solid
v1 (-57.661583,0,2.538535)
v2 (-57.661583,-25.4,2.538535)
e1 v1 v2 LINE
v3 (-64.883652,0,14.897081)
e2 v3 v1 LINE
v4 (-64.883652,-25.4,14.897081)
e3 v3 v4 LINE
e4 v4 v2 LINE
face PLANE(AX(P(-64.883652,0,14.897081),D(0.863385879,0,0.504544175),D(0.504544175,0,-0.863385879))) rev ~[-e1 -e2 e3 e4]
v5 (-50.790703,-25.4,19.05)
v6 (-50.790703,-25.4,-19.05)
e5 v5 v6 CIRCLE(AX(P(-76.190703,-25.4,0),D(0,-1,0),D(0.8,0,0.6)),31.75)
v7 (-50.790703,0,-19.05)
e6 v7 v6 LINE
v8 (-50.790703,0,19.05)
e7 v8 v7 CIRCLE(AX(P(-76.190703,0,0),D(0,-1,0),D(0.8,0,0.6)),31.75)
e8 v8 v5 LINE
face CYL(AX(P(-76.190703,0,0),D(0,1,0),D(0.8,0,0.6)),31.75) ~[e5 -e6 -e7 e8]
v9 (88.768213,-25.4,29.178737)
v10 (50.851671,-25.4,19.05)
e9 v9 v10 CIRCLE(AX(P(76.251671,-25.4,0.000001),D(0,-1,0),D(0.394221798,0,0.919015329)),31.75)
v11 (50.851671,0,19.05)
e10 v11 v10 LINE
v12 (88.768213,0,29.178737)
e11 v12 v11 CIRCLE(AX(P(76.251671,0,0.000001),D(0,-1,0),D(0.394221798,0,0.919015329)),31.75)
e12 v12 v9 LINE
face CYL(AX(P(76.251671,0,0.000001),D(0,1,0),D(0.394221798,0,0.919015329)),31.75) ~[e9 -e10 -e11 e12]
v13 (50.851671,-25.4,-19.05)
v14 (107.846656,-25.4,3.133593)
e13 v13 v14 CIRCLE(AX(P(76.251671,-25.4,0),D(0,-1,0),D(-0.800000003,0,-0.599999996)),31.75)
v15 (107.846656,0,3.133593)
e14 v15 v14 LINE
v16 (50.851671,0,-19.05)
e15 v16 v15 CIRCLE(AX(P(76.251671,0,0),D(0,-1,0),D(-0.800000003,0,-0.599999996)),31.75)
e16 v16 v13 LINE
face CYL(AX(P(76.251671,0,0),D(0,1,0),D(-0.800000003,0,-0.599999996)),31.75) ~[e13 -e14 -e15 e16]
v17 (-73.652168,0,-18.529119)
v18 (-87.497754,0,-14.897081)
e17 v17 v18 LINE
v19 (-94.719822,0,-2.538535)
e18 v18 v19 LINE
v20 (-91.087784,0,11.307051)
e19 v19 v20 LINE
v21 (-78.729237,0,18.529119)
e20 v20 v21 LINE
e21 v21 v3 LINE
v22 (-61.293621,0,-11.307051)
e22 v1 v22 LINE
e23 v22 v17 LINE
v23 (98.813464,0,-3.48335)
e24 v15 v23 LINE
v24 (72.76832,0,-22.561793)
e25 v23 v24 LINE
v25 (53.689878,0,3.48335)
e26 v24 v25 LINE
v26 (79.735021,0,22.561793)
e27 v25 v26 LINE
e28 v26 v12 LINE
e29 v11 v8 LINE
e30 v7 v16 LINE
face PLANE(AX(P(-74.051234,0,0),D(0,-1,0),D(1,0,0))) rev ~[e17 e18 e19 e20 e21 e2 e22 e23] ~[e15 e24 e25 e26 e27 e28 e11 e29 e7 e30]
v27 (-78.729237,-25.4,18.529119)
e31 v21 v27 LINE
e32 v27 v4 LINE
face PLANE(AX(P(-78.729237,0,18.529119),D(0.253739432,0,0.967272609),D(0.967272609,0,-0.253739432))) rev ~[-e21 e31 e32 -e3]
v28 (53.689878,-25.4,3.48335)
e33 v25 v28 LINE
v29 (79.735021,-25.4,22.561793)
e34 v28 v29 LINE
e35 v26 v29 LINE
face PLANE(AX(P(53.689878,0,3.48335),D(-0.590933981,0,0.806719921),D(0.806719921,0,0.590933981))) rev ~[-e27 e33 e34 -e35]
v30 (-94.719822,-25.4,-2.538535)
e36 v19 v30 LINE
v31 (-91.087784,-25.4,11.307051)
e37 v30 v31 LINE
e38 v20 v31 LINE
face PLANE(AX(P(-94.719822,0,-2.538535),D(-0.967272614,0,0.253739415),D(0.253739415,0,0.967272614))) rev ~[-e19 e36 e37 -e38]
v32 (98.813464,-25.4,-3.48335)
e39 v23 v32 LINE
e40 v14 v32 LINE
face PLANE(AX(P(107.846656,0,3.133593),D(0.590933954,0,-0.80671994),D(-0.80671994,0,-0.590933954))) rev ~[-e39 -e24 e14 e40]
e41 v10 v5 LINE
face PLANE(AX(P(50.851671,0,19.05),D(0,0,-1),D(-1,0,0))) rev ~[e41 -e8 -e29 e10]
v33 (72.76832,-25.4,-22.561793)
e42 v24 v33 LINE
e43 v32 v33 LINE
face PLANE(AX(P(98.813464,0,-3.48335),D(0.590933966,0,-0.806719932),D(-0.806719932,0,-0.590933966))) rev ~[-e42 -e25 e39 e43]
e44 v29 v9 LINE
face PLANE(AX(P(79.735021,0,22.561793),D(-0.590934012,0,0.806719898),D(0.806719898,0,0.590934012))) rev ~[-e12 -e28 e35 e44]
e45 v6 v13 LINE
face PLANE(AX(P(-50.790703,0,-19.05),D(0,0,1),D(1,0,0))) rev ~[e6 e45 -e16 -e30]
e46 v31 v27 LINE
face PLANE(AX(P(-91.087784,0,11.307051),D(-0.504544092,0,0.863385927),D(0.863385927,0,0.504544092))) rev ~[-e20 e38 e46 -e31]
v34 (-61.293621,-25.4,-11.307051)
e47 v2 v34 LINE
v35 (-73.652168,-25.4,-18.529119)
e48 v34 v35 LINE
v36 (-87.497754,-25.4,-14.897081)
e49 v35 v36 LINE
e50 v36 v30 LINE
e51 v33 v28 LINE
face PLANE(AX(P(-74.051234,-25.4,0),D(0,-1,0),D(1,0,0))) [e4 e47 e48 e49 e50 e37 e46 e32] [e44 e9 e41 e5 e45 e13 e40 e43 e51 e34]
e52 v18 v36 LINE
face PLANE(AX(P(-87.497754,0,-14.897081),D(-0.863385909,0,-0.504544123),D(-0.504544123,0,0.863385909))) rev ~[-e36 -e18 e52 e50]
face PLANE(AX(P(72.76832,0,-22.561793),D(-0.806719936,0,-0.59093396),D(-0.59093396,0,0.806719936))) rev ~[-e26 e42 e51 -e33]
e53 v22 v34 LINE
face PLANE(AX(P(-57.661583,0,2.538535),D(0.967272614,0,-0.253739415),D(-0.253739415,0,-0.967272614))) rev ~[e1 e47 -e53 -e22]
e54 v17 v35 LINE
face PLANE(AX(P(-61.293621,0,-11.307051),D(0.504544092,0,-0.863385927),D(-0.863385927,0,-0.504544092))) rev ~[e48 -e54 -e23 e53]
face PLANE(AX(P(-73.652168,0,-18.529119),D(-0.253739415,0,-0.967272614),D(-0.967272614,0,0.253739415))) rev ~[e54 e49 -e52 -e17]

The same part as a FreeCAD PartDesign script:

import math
import FreeCAD as App
import Part
import Sketcher
Q = App.Units.Quantity

doc = App.newDocument("Part")
body = doc.addObject("PartDesign::Body", "Body")

sketch1 = body.newObject("Sketcher::SketchObject", "Sketch")
sketch1.AttachmentSupport = (doc.getObject("XZ_Plane"), [""])
sketch1.MapMode = "FlatFace"
sketch1.addGeometry(Part.ArcOfCircle(Part.Circle(App.Vector(-76, 0, 0), App.Vector(0, 0, 1), 32), math.radians(37), math.radians(323)), False)
sketch1.addGeometry(Part.LineSegment(App.Vector(-51, -19, 0), App.Vector(51, -19, 0)), False)
sketch1.addGeometry(Part.ArcOfCircle(Part.Circle(App.Vector(76, 0, 0), App.Vector(0, 0, 1), 32), math.radians(-143), math.radians(6)), False)
sketch1.addGeometry(Part.LineSegment(App.Vector(108, 3, 0), App.Vector(99, -3, 0)), False)
sketch1.addGeometry(Part.LineSegment(App.Vector(99, -3, 0), App.Vector(73, -23, 0)), False)
sketch1.addGeometry(Part.LineSegment(App.Vector(73, -23, 0), App.Vector(54, 3, 0)), False)
sketch1.addGeometry(Part.LineSegment(App.Vector(54, 3, 0), App.Vector(80, 23, 0)), False)
sketch1.addGeometry(Part.LineSegment(App.Vector(80, 23, 0), App.Vector(89, 29, 0)), False)
sketch1.addGeometry(Part.ArcOfCircle(Part.Circle(App.Vector(76, 0, 0), App.Vector(0, 0, 1), 32), math.radians(67), math.radians(143)), False)
sketch1.addGeometry(Part.LineSegment(App.Vector(51, 19, 0), App.Vector(-51, 19, 0)), False)
sketch1.addGeometry(Part.LineSegment(App.Vector(-91, 11, 0), App.Vector(-79, 19, 0)), False)
sketch1.addGeometry(Part.LineSegment(App.Vector(-79, 19, 0), App.Vector(-65, 15, 0)), False)
sketch1.addGeometry(Part.LineSegment(App.Vector(-65, 15, 0), App.Vector(-58, 3, 0)), False)
sketch1.addGeometry(Part.LineSegment(App.Vector(-58, 3, 0), App.Vector(-61, -11, 0)), False)
sketch1.addGeometry(Part.LineSegment(App.Vector(-61, -11, 0), App.Vector(-74, -19, 0)), False)
sketch1.addGeometry(Part.LineSegment(App.Vector(-74, -19, 0), App.Vector(-87, -15, 0)), False)
sketch1.addGeometry(Part.LineSegment(App.Vector(-87, -15, 0), App.Vector(-95, -3, 0)), False)
sketch1.addGeometry(Part.LineSegment(App.Vector(-95, -3, 0), App.Vector(-91, 11, 0)), False)
sketch1.addConstraint(Sketcher.Constraint("Coincident", 0, 2, 1, 1))
sketch1.addConstraint(Sketcher.Constraint("Coincident", 1, 2, 2, 1))
sketch1.addConstraint(Sketcher.Constraint("Coincident", 2, 2, 3, 1))
sketch1.addConstraint(Sketcher.Constraint("Coincident", 3, 2, 4, 1))
sketch1.addConstraint(Sketcher.Constraint("Coincident", 4, 2, 5, 1))
sketch1.addConstraint(Sketcher.Constraint("Coincident", 5, 2, 6, 1))
sketch1.addConstraint(Sketcher.Constraint("Coincident", 6, 2, 7, 1))
sketch1.addConstraint(Sketcher.Constraint("Coincident", 7, 2, 8, 1))
sketch1.addConstraint(Sketcher.Constraint("Coincident", 8, 2, 9, 1))
sketch1.addConstraint(Sketcher.Constraint("Coincident", 9, 2, 0, 1))
sketch1.addConstraint(Sketcher.Constraint("Coincident", 10, 2, 11, 1))
sketch1.addConstraint(Sketcher.Constraint("Coincident", 11, 2, 12, 1))
sketch1.addConstraint(Sketcher.Constraint("Coincident", 12, 2, 13, 1))
sketch1.addConstraint(Sketcher.Constraint("Coincident", 13, 2, 14, 1))
sketch1.addConstraint(Sketcher.Constraint("Coincident", 14, 2, 15, 1))
sketch1.addConstraint(Sketcher.Constraint("Coincident", 15, 2, 16, 1))
sketch1.addConstraint(Sketcher.Constraint("Coincident", 16, 2, 17, 1))
sketch1.addConstraint(Sketcher.Constraint("Coincident", 17, 2, 10, 1))
sketch1.addConstraint(Sketcher.Constraint("Horizontal", 1))
sketch1.addConstraint(Sketcher.Constraint("Horizontal", 9))
sketch1.addConstraint(Sketcher.Constraint("Coincident", 8, 3, 2, 3))
sketch1.addConstraint(Sketcher.Constraint("Equal", 0, 2))
sketch1.addConstraint(Sketcher.Constraint("Equal", 2, 8))
sketch1.addConstraint(Sketcher.Constraint("Symmetric", 1, 2, 8, 2, -1))
sketch1.addConstraint(Sketcher.Constraint("PointOnObject", 0, 3, -1))
sketch1.addConstraint(Sketcher.Constraint("Parallel", 3, 4))
sketch1.addConstraint(Sketcher.Constraint("Perpendicular", 4, 5))
sketch1.addConstraint(Sketcher.Constraint("Perpendicular", 5, 6))
sketch1.addConstraint(Sketcher.Constraint("Parallel", 6, 7))
sketch1.addConstraint(Sketcher.Constraint("Perpendicular", 10, 12))
sketch1.addConstraint(Sketcher.Constraint("Perpendicular", 11, 13))
sketch1.addConstraint(Sketcher.Constraint("Perpendicular", 12, 14))
sketch1.addConstraint(Sketcher.Constraint("Perpendicular", 13, 15))
sketch1.addConstraint(Sketcher.Constraint("Perpendicular", 14, 16))
sketch1.addConstraint(Sketcher.Constraint("Perpendicular", 15, 17))
sketch1.addConstraint(Sketcher.Constraint("Equal", 4, 5))
sketch1.addConstraint(Sketcher.Constraint("Equal", 5, 6))
sketch1.addConstraint(Sketcher.Constraint("Equal", 3, 7))
sketch1.addConstraint(Sketcher.Constraint("Equal", 10, 11))
sketch1.addConstraint(Sketcher.Constraint("Equal", 11, 12))
sketch1.addConstraint(Sketcher.Constraint("Equal", 12, 13))
sketch1.addConstraint(Sketcher.Constraint("Equal", 13, 14))
sketch1.addConstraint(Sketcher.Constraint("Equal", 14, 15))
sketch1.addConstraint(Sketcher.Constraint("Radius", 0, Q("1.25 in")))
sketch1.addConstraint(Sketcher.Constraint("DistanceX", 0, 3, 0, 2, Q("1 in")))
sketch1.addConstraint(Sketcher.Constraint("DistanceY", 3, 2, 5, 2, Q("6.9667 mm")))
sketch1.addConstraint(Sketcher.Constraint("DistanceY", 2, 2, 6, 2, Q("19.4282 mm")))
sketch1.addConstraint(Sketcher.Constraint("DistanceY", 14, 2, 11, 2, Q("33.4262 mm")))
sketch1.addConstraint(Sketcher.Constraint("DistanceX", 1, 1, 1, 2, Q("101.642374 mm")))
sketch1.addConstraint(Sketcher.Constraint("DistanceX", -1, 1, 2, 3, Q("76.251671 mm")))
sketch1.addConstraint(Sketcher.Constraint("DistanceY", 3, 2, -1, 1, Q("3.48335 mm")))
sketch1.addConstraint(Sketcher.Constraint("DistanceY", -1, 1, 10, 2, Q("18.529119 mm")))
sketch1.addConstraint(Sketcher.Constraint("DistanceX", 11, 2, -1, 1, Q("64.883652 mm")))
sketch1.addConstraint(Sketcher.Constraint("DistanceY", -1, 1, 11, 2, Q("14.897081 mm")))
sketch1.addConstraint(Sketcher.Constraint("DistanceX", 13, 2, -1, 1, Q("61.293621 mm")))
pad1 = body.newObject("PartDesign::Pad", "Pad")
pad1.Profile = sketch1
pad1.Length = Q("1 in")

doc.recompute()
